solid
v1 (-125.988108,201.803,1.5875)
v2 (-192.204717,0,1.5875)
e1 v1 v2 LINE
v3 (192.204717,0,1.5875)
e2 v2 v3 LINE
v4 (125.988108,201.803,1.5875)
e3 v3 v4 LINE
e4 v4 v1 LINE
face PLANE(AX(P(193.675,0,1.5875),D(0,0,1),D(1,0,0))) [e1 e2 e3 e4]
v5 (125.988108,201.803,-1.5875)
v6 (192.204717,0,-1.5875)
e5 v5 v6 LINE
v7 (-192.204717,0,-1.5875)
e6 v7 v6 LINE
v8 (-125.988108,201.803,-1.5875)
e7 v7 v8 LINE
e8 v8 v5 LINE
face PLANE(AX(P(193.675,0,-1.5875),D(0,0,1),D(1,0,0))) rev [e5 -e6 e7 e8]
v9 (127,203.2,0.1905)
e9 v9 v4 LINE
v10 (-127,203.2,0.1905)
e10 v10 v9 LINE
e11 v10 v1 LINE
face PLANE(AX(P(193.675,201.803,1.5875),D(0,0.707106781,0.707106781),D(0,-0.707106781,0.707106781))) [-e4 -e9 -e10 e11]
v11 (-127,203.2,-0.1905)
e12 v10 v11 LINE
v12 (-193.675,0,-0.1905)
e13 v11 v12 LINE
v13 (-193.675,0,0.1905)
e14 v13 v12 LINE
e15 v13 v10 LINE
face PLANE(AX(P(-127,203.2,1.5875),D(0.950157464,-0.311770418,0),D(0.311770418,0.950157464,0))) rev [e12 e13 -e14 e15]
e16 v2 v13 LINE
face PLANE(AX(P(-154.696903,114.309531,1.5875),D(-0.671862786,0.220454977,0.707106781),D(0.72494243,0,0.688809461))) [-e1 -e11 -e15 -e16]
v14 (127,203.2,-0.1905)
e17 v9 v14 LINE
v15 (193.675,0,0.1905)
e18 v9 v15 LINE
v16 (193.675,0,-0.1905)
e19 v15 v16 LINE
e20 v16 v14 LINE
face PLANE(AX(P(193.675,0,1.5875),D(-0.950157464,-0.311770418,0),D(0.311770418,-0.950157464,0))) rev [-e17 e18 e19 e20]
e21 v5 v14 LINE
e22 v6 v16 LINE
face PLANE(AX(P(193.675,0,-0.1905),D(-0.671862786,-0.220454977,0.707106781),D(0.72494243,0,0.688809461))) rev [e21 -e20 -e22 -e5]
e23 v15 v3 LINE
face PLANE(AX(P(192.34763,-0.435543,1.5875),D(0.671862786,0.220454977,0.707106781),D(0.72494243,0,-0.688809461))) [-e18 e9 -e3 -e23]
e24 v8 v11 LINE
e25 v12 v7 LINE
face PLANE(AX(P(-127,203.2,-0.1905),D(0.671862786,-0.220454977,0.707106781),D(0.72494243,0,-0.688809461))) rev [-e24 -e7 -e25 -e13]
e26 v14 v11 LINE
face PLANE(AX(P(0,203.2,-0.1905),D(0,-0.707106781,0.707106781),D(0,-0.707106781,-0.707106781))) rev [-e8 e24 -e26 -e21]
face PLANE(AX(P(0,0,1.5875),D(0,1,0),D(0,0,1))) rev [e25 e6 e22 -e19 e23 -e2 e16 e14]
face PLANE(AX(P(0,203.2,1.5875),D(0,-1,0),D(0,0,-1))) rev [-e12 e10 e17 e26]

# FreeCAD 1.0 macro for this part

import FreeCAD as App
import Part
import Sketcher

V = App.Vector
Q = App.Units.Quantity


def edges_at(feature, points):
    """Names of the edges that pass closest to the given points."""
    edges = feature.Shape.Edges
    near = lambda p: min(range(len(edges)), key=lambda i: edges[i].distToShape(Part.Vertex(*p))[0])
    return sorted({f"Edge{near(p) + 1}" for p in points})

doc = App.newDocument("Part")
body = doc.addObject("PartDesign::Body", "Body")

# Sketch on XY plane
sketch1 = body.newObject("Sketcher::SketchObject", "Sketch")
sketch1.AttachmentSupport = (doc.getObject("XY_Plane"), [""])
sketch1.MapMode = "FlatFace"
sketch1.addGeometry([
    Part.LineSegment(V(194, 0, 0), V(127, 203, 0)),
    Part.LineSegment(V(127, 203, 0), V(-127, 203, 0)),
    Part.LineSegment(V(-127, 203, 0), V(-194, 0, 0)),
    Part.LineSegment(V(-194, 0, 0), V(194, 0, 0)),
], False)
sketch1.addConstraint([
    Sketcher.Constraint("Coincident", 0, 2, 1, 1),
    Sketcher.Constraint("Coincident", 1, 2, 2, 1),
    Sketcher.Constraint("Coincident", 2, 2, 3, 1),
    Sketcher.Constraint("Coincident", 3, 2, 0, 1),
    Sketcher.Constraint("Horizontal", 1),
    Sketcher.Constraint("Horizontal", 3),
    Sketcher.Constraint("Symmetric", 2, 2, 3, 2, -1, 1),
    Sketcher.Constraint("Equal", 0, 2),
    Sketcher.Constraint("DistanceX", 1, 2, 1, 1, Q("10 in")),
    Sketcher.Constraint("DistanceY", -1, 1, 0, 2, Q("8 in")),
    Sketcher.Constraint("DistanceX", 3, 1, 3, 2, Q("15.25 in")),
])
pad1 = body.newObject("PartDesign::Pad", "Pad")
pad1.Profile = sketch1
pad1.Length = Q("0.125 in")
pad1.Midplane = True
doc.recompute()

chamfer = body.newObject("PartDesign::Chamfer", "Chamfer")
chamfer.Base = (pad1, edges_at(pad1, [
    (160.338, 101.6, 1.587),
    (0, 203.2, 1.587),
    (-160.338, 101.6, 1.587),
    (-160.338, 101.6, -1.587),
    (0, 203.2, -1.587),
    (160.338, 101.6, -1.587),
]))
chamfer.Size = Q("0.055 in")

doc.recompute()
